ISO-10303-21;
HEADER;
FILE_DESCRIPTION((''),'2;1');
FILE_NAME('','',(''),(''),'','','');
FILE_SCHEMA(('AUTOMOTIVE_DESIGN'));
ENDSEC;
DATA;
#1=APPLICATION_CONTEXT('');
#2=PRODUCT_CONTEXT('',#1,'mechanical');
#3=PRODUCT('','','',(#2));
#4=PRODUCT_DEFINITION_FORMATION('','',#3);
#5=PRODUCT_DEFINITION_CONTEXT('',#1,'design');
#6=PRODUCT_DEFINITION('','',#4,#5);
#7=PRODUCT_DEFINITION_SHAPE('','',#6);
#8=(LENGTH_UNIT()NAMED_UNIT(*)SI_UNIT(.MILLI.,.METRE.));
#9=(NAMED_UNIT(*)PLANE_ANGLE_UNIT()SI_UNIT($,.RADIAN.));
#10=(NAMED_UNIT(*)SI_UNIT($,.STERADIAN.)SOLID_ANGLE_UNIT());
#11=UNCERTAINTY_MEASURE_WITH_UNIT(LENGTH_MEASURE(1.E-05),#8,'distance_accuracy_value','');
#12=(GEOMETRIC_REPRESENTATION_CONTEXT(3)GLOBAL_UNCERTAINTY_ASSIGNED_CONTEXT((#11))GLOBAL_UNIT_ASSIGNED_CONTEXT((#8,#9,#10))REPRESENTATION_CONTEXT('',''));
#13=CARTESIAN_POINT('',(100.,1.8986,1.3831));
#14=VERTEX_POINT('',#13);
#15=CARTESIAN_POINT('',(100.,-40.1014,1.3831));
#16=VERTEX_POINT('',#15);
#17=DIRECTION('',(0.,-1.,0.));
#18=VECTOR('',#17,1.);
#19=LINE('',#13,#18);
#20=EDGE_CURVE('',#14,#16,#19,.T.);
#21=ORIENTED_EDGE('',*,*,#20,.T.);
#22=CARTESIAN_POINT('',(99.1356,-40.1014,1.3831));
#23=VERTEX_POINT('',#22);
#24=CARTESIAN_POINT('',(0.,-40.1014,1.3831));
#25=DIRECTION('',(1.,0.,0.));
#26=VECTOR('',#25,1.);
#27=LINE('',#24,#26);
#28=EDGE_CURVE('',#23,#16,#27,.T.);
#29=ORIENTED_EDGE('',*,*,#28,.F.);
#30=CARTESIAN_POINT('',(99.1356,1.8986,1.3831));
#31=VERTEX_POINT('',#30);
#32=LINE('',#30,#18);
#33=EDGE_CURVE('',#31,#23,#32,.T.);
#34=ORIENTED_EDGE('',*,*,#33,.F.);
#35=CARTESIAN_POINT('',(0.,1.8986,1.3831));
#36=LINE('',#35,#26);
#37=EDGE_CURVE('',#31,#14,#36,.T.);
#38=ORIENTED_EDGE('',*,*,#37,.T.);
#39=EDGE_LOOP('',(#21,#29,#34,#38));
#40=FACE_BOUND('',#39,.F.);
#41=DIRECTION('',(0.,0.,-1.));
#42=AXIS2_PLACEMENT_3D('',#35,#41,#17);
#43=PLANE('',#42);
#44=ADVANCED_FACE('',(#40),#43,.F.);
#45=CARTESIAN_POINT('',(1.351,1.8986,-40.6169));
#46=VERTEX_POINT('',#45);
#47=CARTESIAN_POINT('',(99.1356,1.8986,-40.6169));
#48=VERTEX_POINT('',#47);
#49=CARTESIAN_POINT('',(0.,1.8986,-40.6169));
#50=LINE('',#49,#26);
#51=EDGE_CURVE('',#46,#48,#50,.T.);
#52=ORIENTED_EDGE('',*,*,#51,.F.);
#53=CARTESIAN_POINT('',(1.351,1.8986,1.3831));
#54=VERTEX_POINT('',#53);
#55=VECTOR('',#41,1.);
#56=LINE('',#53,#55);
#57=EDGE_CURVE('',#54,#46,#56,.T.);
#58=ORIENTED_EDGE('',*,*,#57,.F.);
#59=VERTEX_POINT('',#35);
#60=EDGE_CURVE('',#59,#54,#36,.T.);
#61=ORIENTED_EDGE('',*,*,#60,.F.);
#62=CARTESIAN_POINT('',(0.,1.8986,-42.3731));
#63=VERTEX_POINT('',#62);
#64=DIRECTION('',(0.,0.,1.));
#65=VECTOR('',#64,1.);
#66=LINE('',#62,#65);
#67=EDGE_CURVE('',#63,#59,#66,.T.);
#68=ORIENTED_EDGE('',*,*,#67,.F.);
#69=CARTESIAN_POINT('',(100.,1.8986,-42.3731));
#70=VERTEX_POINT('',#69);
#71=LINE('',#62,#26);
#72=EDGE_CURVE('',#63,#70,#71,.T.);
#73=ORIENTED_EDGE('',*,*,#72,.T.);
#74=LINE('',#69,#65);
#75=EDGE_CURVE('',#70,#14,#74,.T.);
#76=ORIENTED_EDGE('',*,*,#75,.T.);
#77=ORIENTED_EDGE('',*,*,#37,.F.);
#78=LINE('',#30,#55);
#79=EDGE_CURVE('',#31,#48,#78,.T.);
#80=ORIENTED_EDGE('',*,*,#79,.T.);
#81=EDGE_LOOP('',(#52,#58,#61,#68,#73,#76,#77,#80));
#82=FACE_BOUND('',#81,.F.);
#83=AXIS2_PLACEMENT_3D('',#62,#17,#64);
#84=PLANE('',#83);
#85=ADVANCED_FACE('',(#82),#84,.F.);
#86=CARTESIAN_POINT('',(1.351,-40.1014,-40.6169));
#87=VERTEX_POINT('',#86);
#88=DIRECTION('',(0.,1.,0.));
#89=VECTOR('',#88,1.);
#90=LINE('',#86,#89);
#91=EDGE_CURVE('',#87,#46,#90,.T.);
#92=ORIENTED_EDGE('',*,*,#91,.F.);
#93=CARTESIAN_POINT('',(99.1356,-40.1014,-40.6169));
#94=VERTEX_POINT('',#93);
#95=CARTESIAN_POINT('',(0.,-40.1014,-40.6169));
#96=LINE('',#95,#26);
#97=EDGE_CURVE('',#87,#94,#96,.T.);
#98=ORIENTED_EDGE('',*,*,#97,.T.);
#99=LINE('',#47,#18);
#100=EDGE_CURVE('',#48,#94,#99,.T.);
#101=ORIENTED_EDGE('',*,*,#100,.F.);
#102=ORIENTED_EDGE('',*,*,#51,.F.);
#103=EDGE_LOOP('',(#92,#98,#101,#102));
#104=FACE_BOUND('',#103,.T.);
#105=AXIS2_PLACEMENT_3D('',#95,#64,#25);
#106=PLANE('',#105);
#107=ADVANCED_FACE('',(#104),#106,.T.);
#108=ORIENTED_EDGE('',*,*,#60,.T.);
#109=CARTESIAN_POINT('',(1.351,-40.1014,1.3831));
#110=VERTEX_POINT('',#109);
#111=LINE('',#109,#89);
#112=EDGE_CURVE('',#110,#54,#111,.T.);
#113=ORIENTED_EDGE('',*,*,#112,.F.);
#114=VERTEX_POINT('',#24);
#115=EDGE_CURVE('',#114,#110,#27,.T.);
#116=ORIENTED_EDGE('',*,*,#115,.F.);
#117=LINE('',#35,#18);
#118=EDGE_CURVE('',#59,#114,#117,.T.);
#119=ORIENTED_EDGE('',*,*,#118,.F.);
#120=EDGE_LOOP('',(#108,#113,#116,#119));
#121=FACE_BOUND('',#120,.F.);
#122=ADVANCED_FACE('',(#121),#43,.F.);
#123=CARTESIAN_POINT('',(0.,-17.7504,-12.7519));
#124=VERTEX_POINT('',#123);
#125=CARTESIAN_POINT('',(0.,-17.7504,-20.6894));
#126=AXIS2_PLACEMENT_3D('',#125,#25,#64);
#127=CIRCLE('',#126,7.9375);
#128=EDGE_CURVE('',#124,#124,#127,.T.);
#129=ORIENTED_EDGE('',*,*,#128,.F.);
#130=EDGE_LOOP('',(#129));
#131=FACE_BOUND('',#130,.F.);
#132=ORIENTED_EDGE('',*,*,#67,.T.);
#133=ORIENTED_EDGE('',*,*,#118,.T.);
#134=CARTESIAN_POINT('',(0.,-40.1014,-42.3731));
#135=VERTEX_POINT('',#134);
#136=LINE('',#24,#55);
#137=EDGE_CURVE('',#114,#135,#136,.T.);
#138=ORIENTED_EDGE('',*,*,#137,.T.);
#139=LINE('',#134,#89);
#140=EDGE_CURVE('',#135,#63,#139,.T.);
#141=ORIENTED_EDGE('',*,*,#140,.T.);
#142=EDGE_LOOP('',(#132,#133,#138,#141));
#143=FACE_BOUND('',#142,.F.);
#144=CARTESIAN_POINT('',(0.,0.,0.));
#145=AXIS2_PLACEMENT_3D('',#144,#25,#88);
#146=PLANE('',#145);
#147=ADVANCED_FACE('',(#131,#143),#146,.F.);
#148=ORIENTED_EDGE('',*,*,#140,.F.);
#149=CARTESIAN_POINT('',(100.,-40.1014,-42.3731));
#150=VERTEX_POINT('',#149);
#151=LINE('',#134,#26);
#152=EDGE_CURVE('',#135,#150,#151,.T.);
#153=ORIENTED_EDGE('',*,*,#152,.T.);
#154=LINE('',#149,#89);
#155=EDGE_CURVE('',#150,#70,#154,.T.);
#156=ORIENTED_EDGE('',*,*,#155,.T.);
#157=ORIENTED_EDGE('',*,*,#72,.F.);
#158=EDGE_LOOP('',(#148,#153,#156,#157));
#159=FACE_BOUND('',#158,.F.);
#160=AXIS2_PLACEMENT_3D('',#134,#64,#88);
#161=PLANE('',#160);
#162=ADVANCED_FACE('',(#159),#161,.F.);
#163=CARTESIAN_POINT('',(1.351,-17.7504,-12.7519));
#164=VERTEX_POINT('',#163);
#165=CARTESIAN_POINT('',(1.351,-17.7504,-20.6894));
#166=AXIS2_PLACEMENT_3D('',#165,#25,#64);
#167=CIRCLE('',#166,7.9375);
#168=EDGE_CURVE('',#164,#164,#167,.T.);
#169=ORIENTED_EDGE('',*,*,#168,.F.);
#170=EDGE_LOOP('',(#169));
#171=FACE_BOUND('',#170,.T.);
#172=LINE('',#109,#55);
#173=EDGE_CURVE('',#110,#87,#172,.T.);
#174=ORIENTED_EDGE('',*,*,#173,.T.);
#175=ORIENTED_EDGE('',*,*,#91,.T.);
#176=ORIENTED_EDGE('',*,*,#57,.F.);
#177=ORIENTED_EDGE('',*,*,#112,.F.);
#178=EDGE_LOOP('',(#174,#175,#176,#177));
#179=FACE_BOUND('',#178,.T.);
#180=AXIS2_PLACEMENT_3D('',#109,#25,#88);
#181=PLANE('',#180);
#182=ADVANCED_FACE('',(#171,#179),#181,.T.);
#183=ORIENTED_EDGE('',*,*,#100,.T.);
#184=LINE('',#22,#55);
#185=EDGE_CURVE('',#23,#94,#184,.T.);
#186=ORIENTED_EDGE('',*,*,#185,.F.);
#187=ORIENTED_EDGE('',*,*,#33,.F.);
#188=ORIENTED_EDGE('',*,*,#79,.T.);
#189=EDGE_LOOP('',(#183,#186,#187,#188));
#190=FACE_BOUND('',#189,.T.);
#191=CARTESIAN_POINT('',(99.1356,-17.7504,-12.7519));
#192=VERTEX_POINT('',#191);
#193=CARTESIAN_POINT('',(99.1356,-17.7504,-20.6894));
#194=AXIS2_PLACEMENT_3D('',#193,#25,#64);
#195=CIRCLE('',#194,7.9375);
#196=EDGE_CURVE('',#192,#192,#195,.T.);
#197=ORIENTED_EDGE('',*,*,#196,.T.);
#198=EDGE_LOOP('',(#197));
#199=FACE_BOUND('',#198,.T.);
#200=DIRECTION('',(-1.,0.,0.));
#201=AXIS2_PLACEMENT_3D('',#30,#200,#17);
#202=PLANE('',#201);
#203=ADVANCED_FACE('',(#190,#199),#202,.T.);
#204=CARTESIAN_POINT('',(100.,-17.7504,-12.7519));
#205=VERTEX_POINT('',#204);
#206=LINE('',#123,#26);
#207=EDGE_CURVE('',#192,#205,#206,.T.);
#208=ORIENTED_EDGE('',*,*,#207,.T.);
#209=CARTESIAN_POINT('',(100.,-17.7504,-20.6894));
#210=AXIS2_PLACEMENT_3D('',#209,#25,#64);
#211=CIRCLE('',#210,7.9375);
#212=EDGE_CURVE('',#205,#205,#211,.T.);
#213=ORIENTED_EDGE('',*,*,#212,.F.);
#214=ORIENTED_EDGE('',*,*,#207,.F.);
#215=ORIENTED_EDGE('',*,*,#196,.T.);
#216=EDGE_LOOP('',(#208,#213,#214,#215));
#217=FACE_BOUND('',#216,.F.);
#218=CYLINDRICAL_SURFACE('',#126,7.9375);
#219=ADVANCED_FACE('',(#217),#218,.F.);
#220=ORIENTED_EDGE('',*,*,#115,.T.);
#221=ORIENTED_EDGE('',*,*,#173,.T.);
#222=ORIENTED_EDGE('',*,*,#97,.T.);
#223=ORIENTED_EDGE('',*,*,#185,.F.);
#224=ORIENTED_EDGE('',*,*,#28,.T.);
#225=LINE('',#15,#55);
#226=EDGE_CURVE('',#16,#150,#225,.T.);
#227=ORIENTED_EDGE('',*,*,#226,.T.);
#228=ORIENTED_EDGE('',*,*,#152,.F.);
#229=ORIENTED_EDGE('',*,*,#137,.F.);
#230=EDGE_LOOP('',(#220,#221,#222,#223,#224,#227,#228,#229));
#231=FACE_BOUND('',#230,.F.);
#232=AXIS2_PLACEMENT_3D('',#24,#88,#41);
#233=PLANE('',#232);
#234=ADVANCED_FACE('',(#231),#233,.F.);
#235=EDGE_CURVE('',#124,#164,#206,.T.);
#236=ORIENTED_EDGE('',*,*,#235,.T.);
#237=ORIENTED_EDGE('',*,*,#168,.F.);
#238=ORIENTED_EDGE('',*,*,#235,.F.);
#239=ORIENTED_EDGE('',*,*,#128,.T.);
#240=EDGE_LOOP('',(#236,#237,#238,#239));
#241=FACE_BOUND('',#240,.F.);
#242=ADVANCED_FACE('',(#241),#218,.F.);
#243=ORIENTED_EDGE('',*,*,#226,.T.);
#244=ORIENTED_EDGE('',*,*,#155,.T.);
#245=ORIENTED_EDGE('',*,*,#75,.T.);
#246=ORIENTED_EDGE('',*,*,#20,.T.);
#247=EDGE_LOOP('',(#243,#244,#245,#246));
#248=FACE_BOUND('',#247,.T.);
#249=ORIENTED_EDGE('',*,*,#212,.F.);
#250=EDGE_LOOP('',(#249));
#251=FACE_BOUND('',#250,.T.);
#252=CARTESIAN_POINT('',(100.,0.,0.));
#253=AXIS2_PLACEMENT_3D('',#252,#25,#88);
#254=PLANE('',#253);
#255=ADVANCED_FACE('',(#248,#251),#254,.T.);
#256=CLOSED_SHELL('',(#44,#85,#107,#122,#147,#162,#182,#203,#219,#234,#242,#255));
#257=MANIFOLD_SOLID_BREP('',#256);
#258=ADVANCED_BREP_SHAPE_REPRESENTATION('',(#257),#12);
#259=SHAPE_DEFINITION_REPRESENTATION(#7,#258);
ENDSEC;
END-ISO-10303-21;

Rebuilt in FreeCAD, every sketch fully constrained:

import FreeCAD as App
import Part
import Sketcher

V = App.Vector
Q = App.Units.Quantity


def add_polygon(sketch, points):
    """Adds a closed chain of lines whose ends are joined by coincident constraints."""
    first, n = sketch.GeometryCount, len(points)
    for a, b in zip(points, points[1:] + points[:1]):
        sketch.addGeometry(Part.LineSegment(App.Vector(*a, 0), App.Vector(*b, 0)), False)
    for i in range(n):
        sketch.addConstraint(Sketcher.Constraint("Coincident", first + i, 2, first + (i + 1) % n, 1))

doc = App.newDocument("Part")
body = doc.addObject("PartDesign::Body", "Body")

# Sketch on YZ plane
sketch1 = body.newObject("Sketcher::SketchObject", "Sketch")
sketch1.AttachmentSupport = (doc.getObject("YZ_Plane"), [""])
sketch1.MapMode = "FlatFace"
add_polygon(sketch1, [(2, -42), (2, 1), (-40, 1), (-40, -42)])  # lines 0-3
sketch1.addConstraint([
    Sketcher.Constraint("Vertical", 0),
    Sketcher.Constraint("Horizontal", 1),
    Sketcher.Constraint("Vertical", 2),
    Sketcher.Constraint("Horizontal", 3),
    Sketcher.Constraint("DistanceX", 1, 2, 1, 1, 42.0),
    Sketcher.Constraint("DistanceY", 0, 1, 0, 2, 43.7562),
    Sketcher.Constraint("DistanceX", 1, 2, -1, 1, Q("1.5788 in")),
    Sketcher.Constraint("DistanceY", -1, 1, 0, 2, 1.383),
])
pad1 = body.newObject("PartDesign::Pad", "Pad")
pad1.Profile = sketch1
pad1.Length = Q("3.9370079 in")

# Sketch on YZ plane
sketch2 = body.newObject("Sketcher::SketchObject", "Sketch001")
sketch2.AttachmentSupport = (doc.getObject("YZ_Plane"), [""])
sketch2.MapMode = "FlatFace"
sketch2.addGeometry(Part.Circle(V(-18, -21, 0), V(0, 0, 1), 8), False)
sketch2.addConstraint([
    Sketcher.Constraint("Diameter", 0, Q("0.625 in")),
    Sketcher.Constraint("DistanceX", 0, 3, -1, 1, 17.7504),
    Sketcher.Constraint("DistanceY", 0, 3, -1, 1, 20.6894),
])
doc.recompute()
hole = body.newObject("PartDesign::Hole", "Hole")
hole.Profile = sketch2
hole.ThreadType = "None"
hole.Diameter = Q("0.625 in")
hole.DepthType = "ThroughAll"
hole.Reversed = True

# Sketch on XY plane
sketch3 = body.newObject("Sketcher::SketchObject", "Sketch002")
sketch3.AttachmentSupport = (doc.getObject("XY_Plane"), [""])
sketch3.MapMode = "FlatFace"
sketch3.AttachmentOffset = App.Placement(V(0, 0, 1.3831), App.Rotation())
add_polygon(sketch3, [(99, 2), (1, 2), (1, -40), (99, -40)])  # lines 0-3
sketch3.addConstraint([
    Sketcher.Constraint("Horizontal", 0),
    Sketcher.Constraint("Vertical", 1),
    Sketcher.Constraint("Horizontal", 2),
    Sketcher.Constraint("Vertical", 3),
    Sketcher.Constraint("DistanceX", 0, 2, 0, 1, 97.7846),
    Sketcher.Constraint("DistanceY", 1, 2, 1, 1, 42.0),
    Sketcher.Constraint("DistanceX", -1, 1, 0, 2, Q("0.0532 in")),
    Sketcher.Constraint("DistanceY", 1, 2, -1, 1, Q("1.5788 in")),
])
pocket1 = body.newObject("PartDesign::Pocket", "Pocket")
pocket1.Profile = sketch3
pocket1.Length = 42

doc.recompute()
